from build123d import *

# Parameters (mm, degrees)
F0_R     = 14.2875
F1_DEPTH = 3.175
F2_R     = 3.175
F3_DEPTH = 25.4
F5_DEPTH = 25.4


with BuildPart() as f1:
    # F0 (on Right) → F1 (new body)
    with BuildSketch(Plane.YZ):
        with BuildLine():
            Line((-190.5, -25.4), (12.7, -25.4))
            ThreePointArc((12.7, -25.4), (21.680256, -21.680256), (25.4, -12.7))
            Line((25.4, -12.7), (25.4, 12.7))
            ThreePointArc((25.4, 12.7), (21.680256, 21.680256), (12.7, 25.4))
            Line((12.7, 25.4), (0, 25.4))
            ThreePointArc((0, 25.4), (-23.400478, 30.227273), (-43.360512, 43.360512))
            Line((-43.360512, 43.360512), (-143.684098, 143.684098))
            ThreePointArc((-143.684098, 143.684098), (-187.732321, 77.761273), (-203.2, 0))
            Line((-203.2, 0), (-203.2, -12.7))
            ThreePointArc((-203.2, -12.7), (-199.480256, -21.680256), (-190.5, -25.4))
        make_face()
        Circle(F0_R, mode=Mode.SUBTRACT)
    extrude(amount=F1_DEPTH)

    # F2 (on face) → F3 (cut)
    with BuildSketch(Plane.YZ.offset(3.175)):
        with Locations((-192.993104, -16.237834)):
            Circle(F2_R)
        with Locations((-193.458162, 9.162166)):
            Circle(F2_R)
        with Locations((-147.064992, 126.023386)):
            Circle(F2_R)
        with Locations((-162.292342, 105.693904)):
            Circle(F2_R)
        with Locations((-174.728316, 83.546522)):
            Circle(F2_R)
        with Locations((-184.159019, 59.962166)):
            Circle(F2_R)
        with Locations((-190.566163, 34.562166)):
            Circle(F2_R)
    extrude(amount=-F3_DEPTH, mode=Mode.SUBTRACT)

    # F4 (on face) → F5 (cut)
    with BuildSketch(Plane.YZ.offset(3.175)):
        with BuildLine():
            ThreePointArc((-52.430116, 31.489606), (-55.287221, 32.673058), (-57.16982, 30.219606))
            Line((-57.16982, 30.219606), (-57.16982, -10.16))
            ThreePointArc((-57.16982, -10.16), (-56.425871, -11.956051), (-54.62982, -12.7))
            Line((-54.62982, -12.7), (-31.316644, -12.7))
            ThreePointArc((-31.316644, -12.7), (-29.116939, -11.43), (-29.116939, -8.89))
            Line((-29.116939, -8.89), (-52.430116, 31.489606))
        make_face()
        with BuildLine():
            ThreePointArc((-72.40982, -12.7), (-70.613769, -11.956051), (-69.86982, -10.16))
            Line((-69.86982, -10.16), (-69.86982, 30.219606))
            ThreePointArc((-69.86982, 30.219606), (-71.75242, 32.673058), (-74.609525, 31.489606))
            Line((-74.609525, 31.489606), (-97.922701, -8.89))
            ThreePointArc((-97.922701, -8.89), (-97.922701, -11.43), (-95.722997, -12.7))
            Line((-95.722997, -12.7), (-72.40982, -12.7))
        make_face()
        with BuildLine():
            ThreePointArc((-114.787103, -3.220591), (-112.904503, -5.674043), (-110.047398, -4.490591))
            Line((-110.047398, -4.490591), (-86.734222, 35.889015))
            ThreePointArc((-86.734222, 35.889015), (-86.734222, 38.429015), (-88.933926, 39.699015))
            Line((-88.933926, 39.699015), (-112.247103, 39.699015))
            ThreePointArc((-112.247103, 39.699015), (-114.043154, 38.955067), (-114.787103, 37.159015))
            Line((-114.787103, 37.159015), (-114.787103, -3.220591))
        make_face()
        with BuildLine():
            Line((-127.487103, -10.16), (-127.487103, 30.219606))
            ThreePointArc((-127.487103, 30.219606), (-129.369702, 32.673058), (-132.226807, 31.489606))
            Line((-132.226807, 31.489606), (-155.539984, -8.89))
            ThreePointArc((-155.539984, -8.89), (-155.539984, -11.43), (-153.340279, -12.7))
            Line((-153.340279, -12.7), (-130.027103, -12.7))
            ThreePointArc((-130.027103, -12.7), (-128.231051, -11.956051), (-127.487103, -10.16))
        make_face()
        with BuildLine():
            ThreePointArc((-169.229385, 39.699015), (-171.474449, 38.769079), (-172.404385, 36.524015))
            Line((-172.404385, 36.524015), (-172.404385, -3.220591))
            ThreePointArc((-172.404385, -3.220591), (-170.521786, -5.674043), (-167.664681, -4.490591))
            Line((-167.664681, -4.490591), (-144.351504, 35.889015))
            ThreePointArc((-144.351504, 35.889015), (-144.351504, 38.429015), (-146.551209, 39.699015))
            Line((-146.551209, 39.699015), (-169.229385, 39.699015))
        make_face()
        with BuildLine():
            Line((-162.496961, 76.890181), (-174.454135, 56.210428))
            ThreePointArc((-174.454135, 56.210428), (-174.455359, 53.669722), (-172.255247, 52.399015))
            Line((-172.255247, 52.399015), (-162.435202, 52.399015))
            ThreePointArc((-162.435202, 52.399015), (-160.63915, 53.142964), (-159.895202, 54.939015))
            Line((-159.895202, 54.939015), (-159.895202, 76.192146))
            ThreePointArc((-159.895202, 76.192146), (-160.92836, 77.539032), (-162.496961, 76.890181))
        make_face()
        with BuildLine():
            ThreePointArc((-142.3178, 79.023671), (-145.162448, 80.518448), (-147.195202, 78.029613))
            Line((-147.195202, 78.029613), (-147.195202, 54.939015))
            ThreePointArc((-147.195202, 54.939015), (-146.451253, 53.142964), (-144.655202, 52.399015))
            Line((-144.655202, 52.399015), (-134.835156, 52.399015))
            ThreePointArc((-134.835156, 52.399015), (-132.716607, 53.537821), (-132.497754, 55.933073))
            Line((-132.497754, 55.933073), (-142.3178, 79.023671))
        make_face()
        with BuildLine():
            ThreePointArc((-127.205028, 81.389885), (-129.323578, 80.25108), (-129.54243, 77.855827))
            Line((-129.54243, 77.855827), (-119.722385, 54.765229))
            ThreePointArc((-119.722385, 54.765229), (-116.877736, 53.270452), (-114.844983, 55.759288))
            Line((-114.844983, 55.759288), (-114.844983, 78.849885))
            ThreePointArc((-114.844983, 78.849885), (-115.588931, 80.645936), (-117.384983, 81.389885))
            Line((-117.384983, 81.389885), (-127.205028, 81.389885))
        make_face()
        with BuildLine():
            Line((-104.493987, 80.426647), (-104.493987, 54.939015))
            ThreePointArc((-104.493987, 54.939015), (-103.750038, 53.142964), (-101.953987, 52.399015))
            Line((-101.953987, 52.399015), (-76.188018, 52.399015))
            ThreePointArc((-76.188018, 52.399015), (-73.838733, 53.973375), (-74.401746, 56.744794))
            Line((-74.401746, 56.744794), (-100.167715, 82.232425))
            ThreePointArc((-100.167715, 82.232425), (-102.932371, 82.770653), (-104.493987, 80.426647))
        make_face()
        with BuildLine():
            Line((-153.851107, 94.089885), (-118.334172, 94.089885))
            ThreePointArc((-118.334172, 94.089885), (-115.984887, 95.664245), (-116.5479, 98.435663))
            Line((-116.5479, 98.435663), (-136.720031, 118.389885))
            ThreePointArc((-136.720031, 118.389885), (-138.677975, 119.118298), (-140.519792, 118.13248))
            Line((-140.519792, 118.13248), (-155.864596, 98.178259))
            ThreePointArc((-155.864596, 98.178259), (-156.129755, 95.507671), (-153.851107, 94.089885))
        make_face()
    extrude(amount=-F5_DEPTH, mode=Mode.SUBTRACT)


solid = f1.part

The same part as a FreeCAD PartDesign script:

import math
import FreeCAD as App
import Part
import Sketcher

V = App.Vector
Q = App.Units.Quantity

doc = App.newDocument("Part")
body = doc.addObject("PartDesign::Body", "Body")

sketch1 = doc.addObject("Sketcher::SketchObject", "Sketch")
body.addObject(sketch1)
sketch1.AttachmentSupport = (doc.YZ_Plane, [""])
sketch1.MapMode = "FlatFace"
sketch1.addGeometry([
    Part.LineSegment(V(-190, -25, 0), V(13, -25, 0)),
    Part.ArcOfCircle(Part.Circle(V(13, -13, 0), V(0, 0, 1), 13), math.radians(-90), math.radians(0)),
    Part.LineSegment(V(25, -13, 0), V(25, 13, 0)),
    Part.ArcOfCircle(Part.Circle(V(13, 13, 0), V(0, 0, 1), 13), math.radians(0), math.radians(90)),
    Part.LineSegment(V(13, 25, 0), V(0, 25, 0)),
    Part.ArcOfCircle(Part.Circle(V(1, 89, 0), V(0, 0, 1), 64), math.radians(-134), math.radians(-91)),
    Part.LineSegment(V(-43, 43, 0), V(-144, 144, 0)),
    Part.ArcOfCircle(Part.Circle(V(0, 0, 0), V(0, 0, 1), 203), math.radians(135), math.radians(180)),
    Part.LineSegment(V(-203, 0, 0), V(-203, -13, 0)),
    Part.ArcOfCircle(Part.Circle(V(-190, -13, 0), V(0, 0, 1), 13), math.radians(-180), math.radians(-90)),
    Part.Circle(V(0, 0, 0), V(0, 0, 1), 14),
], False)
sketch1.addConstraint([
    Sketcher.Constraint("Tangent", 0, 2, 1, 1),
    Sketcher.Constraint("Tangent", 1, 2, 2, 1),
    Sketcher.Constraint("Tangent", 2, 2, 3, 1),
    Sketcher.Constraint("Tangent", 3, 2, 4, 1),
    Sketcher.Constraint("Coincident", 4, 2, 5, 2),
    Sketcher.Constraint("Coincident", 5, 1, 6, 1),
    Sketcher.Constraint("Coincident", 6, 2, 7, 1),
    Sketcher.Constraint("Tangent", 7, 2, 8, 1),
    Sketcher.Constraint("Tangent", 8, 2, 9, 1),
    Sketcher.Constraint("Tangent", 9, 2, 0, 1),
    Sketcher.Constraint("Horizontal", 0),
    Sketcher.Constraint("Vertical", 2),
    Sketcher.Constraint("Horizontal", 4),
    Sketcher.Constraint("Vertical", 8),
    Sketcher.Constraint("Coincident", 7, 3, -1, 1),
    Sketcher.Constraint("Coincident", 10, 3, -1, 1),
    Sketcher.Constraint("Equal", 1, 3),
    Sketcher.Constraint("Equal", 3, 9),
    Sketcher.Constraint("PointOnObject", 4, 2, -2),
    Sketcher.Constraint("Equal", 4, 8),
    Sketcher.Constraint("Radius", 7, Q("8.0000001 in")),
    Sketcher.Constraint("Radius", 1, Q("0.5 in")),
    Sketcher.Constraint("DistanceX", 0, 1, 0, 2, Q("8 in")),
    Sketcher.Constraint("DistanceY", 2, 1, 2, 2, Q("1 in")),
    Sketcher.Constraint("Diameter", 10, Q("1.125 in")),
    Sketcher.Constraint("Angle", 6, Q("135 deg")),
    Sketcher.Constraint("Radius", 5, 63.500007),
    Sketcher.Constraint("DistanceX", 6, 2, -1, 1, 143.684098),
    Sketcher.Constraint("DistanceY", -1, 1, 5, 1, 43.360512),
])
pad1 = doc.addObject("PartDesign::Pad", "Pad")
body.addObject(pad1)
pad1.Profile = sketch1
pad1.Length = Q("0.125 in")

sketch2 = doc.addObject("Sketcher::SketchObject", "Sketch001")
body.addObject(sketch2)
sketch2.AttachmentSupport = (doc.YZ_Plane, [""])
sketch2.MapMode = "FlatFace"
sketch2.AttachmentOffset = App.Placement(V(0, 0, 0.125 * 25.4), App.Rotation())
sketch2.addGeometry([
    Part.Circle(V(-193, -16.2, 0), V(0, 0, 1), 3.2),
    Part.Circle(V(-193.5, 9.2, 0), V(0, 0, 1), 3.2),
    Part.Circle(V(-147.1, 126, 0), V(0, 0, 1), 3.2),
    Part.Circle(V(-162.3, 105.7, 0), V(0, 0, 1), 3.2),
    Part.Circle(V(-174.7, 83.5, 0), V(0, 0, 1), 3.2),
    Part.Circle(V(-184.2, 60, 0), V(0, 0, 1), 3.2),
    Part.Circle(V(-190.6, 34.6, 0), V(0, 0, 1), 3.2),
], False)
sketch2.addConstraint([
    Sketcher.Constraint("Equal", 0, 1),
    Sketcher.Constraint("Equal", 1, 2),
    Sketcher.Constraint("Equal", 2, 3),
    Sketcher.Constraint("Equal", 3, 4),
    Sketcher.Constraint("Equal", 4, 5),
    Sketcher.Constraint("Equal", 5, 6),
    Sketcher.Constraint("Diameter", 0, Q("0.25 in")),
    Sketcher.Constraint("DistanceY", 0, 3, 1, 3, Q("1 in")),
    Sketcher.Constraint("DistanceY", 1, 3, 5, 3, Q("2 in")),
    Sketcher.Constraint("DistanceY", 1, 3, 6, 3, Q("1 in")),
    Sketcher.Constraint("DistanceX", 1, 3, 6, 3, 2.891999),
    Sketcher.Constraint("DistanceX", 1, 3, -1, 1, 193.458162),
    Sketcher.Constraint("DistanceX", 2, 3, -1, 1, 147.064992),
    Sketcher.Constraint("DistanceX", 3, 3, -1, 1, 162.292342),
    Sketcher.Constraint("DistanceY", -1, 1, 4, 3, 83.546522),
    Sketcher.Constraint("DistanceX", 5, 3, -1, 1, 184.159019),
    Sketcher.Constraint("DistanceY", 1, 3, 2, 3, 116.86122),
    Sketcher.Constraint("DistanceY", 3, 3, 2, 3, 20.329482),
    Sketcher.Constraint("DistanceX", 0, 3, 3, 3, 30.700762),
    Sketcher.Constraint("DistanceY", 0, 3, -1, 1, 16.237834),
    Sketcher.Constraint("DistanceX", 4, 3, -1, 1, 174.728316),
])
pocket1 = doc.addObject("PartDesign::Pocket", "Pocket")
body.addObject(pocket1)
pocket1.Profile = sketch2
pocket1.Length = Q("1 in")

sketch3 = doc.addObject("Sketcher::SketchObject", "Sketch002")
body.addObject(sketch3)
sketch3.AttachmentSupport = (doc.YZ_Plane, [""])
sketch3.MapMode = "FlatFace"
sketch3.AttachmentOffset = App.Placement(V(0, 0, 0.125 * 25.4), App.Rotation())
sketch3.addGeometry([
    Part.ArcOfCircle(Part.Circle(V(-54.6, 30.2, 0), V(0, 0, 1), 2.5), math.radians(30), math.radians(180)),
    Part.LineSegment(V(-57.2, 30.2, 0), V(-57.2, -10.2, 0)),
    Part.ArcOfCircle(Part.Circle(V(-54.6, -10.2, 0), V(0, 0, 1), 2.5), math.radians(-180), math.radians(-90)),
    Part.LineSegment(V(-54.6, -12.7, 0), V(-31.3, -12.7, 0)),
    Part.ArcOfCircle(Part.Circle(V(-31.3, -10.2, 0), V(0, 0, 1), 2.5), math.radians(-90), math.radians(30)),
    Part.LineSegment(V(-29.1, -8.9, 0), V(-52.4, 31.5, 0)),
    Part.ArcOfCircle(Part.Circle(V(-72.4, -10.2, 0), V(0, 0, 1), 2.5), math.radians(-90), math.radians(0)),
    Part.LineSegment(V(-69.9, -10.2, 0), V(-69.9, 30.2, 0)),
    Part.ArcOfCircle(Part.Circle(V(-72.4, 30.2, 0), V(0, 0, 1), 2.5), math.radians(0), math.radians(150)),
    Part.LineSegment(V(-74.6, 31.5, 0), V(-97.9, -8.9, 0)),
    Part.ArcOfCircle(Part.Circle(V(-95.7, -10.2, 0), V(0, 0, 1), 2.5), math.radians(150), math.radians(270)),
    Part.LineSegment(V(-95.7, -12.7, 0), V(-72.4, -12.7, 0)),
    Part.ArcOfCircle(Part.Circle(V(-112.2, -3.2, 0), V(0, 0, 1), 2.5), math.radians(180), math.radians(330)),
    Part.LineSegment(V(-110, -4.5, 0), V(-86.7, 35.9, 0)),
    Part.ArcOfCircle(Part.Circle(V(-88.9, 37.2, 0), V(0, 0, 1), 2.5), math.radians(-30), math.radians(90)),
    Part.LineSegment(V(-88.9, 39.7, 0), V(-112.2, 39.7, 0)),
    Part.ArcOfCircle(Part.Circle(V(-112.2, 37.2, 0), V(0, 0, 1), 2.5), math.radians(90), math.radians(180)),
    Part.LineSegment(V(-114.8, 37.2, 0), V(-114.8, -3.2, 0)),
    Part.LineSegment(V(-127.5, -10.2, 0), V(-127.5, 30.2, 0)),
    Part.ArcOfCircle(Part.Circle(V(-130, 30.2, 0), V(0, 0, 1), 2.5), math.radians(0), math.radians(150)),
    Part.LineSegment(V(-132.2, 31.5, 0), V(-155.5, -8.9, 0)),
    Part.ArcOfCircle(Part.Circle(V(-153.3, -10.2, 0), V(0, 0, 1), 2.5), math.radians(150), math.radians(270)),
    Part.LineSegment(V(-153.3, -12.7, 0), V(-130, -12.7, 0)),
    Part.ArcOfCircle(Part.Circle(V(-130, -10.2, 0), V(0, 0, 1), 2.5), math.radians(-90), math.radians(0)),
    Part.ArcOfCircle(Part.Circle(V(-169.2, 36.5, 0), V(0, 0, 1), 3.2), math.radians(90), math.radians(180)),
    Part.LineSegment(V(-172.4, 36.5, 0), V(-172.4, -3.2, 0)),
    Part.ArcOfCircle(Part.Circle(V(-169.9, -3.2, 0), V(0, 0, 1), 2.5), math.radians(180), math.radians(330)),
    Part.LineSegment(V(-167.7, -4.5, 0), V(-144.4, 35.9, 0)),
    Part.ArcOfCircle(Part.Circle(V(-146.6, 37.2, 0), V(0, 0, 1), 2.5), math.radians(-30), math.radians(90)),
    Part.LineSegment(V(-146.6, 39.7, 0), V(-169.2, 39.7, 0)),
    Part.LineSegment(V(-162.5, 76.9, 0), V(-174.5, 56.2, 0)),
    Part.ArcOfCircle(Part.Circle(V(-172.3, 54.9, 0), V(0, 0, 1), 2.5), math.radians(150), math.radians(270)),
    Part.LineSegment(V(-172.3, 52.4, 0), V(-162.4, 52.4, 0)),
    Part.ArcOfCircle(Part.Circle(V(-162.4, 54.9, 0), V(0, 0, 1), 2.5), math.radians(-90), math.radians(0)),
    Part.LineSegment(V(-159.9, 54.9, 0), V(-159.9, 76.2, 0)),
    Part.ArcOfCircle(Part.Circle(V(-161.3, 76.2, 0), V(0, 0, 1), 1.4), math.radians(0), math.radians(150)),
    Part.ArcOfCircle(Part.Circle(V(-144.7, 78, 0), V(0, 0, 1), 2.5), math.radians(23), math.radians(180)),
    Part.LineSegment(V(-147.2, 78, 0), V(-147.2, 54.9, 0)),
    Part.ArcOfCircle(Part.Circle(V(-144.7, 54.9, 0), V(0, 0, 1), 2.5), math.radians(-180), math.radians(-90)),
    Part.LineSegment(V(-144.7, 52.4, 0), V(-134.8, 52.4, 0)),
    Part.ArcOfCircle(Part.Circle(V(-134.8, 54.9, 0), V(0, 0, 1), 2.5), math.radians(-90), math.radians(23)),
    Part.LineSegment(V(-132.5, 55.9, 0), V(-142.3, 79, 0)),
    Part.ArcOfCircle(Part.Circle(V(-127.2, 78.8, 0), V(0, 0, 1), 2.5), math.radians(90), math.radians(203)),
    Part.LineSegment(V(-129.5, 77.9, 0), V(-119.7, 54.8, 0)),
    Part.ArcOfCircle(Part.Circle(V(-117.4, 55.8, 0), V(0, 0, 1), 2.5), math.radians(-157), math.radians(0)),
    Part.LineSegment(V(-114.8, 55.8, 0), V(-114.8, 78.8, 0)),
    Part.ArcOfCircle(Part.Circle(V(-117.4, 78.8, 0), V(0, 0, 1), 2.5), math.radians(0), math.radians(90)),
    Part.LineSegment(V(-117.4, 81.4, 0), V(-127.2, 81.4, 0)),
    Part.LineSegment(V(-104.5, 80.4, 0), V(-104.5, 54.9, 0)),
    Part.ArcOfCircle(Part.Circle(V(-102, 54.9, 0), V(0, 0, 1), 2.5), math.radians(-180), math.radians(-90)),
    Part.LineSegment(V(-102, 52.4, 0), V(-76.2, 52.4, 0)),
    Part.ArcOfCircle(Part.Circle(V(-76.2, 54.9, 0), V(0, 0, 1), 2.5), math.radians(-90), math.radians(45)),
    Part.LineSegment(V(-74.4, 56.7, 0), V(-100.2, 82.2, 0)),
    Part.ArcOfCircle(Part.Circle(V(-102, 80.4, 0), V(0, 0, 1), 2.5), math.radians(45), math.radians(180)),
    Part.LineSegment(V(-153.9, 94.1, 0), V(-118.3, 94.1, 0)),
    Part.ArcOfCircle(Part.Circle(V(-118.3, 96.6, 0), V(0, 0, 1), 2.5), math.radians(-90), math.radians(45)),
    Part.LineSegment(V(-116.5, 98.4, 0), V(-136.7, 118.4, 0)),
    Part.ArcOfCircle(Part.Circle(V(-138.5, 116.6, 0), V(0, 0, 1), 2.5), math.radians(45), math.radians(142)),
    Part.LineSegment(V(-140.5, 118.1, 0), V(-155.9, 98.2, 0)),
    Part.ArcOfCircle(Part.Circle(V(-153.9, 96.6, 0), V(0, 0, 1), 2.5), math.radians(142), math.radians(270)),
], False)
sketch3.addConstraint([
    Sketcher.Constraint("Tangent", 0, 2, 1, 1),
    Sketcher.Constraint("Tangent", 1, 2, 2, 1),
    Sketcher.Constraint("Tangent", 2, 2, 3, 1),
    Sketcher.Constraint("Tangent", 3, 2, 4, 1),
    Sketcher.Constraint("Tangent", 4, 2, 5, 1),
    Sketcher.Constraint("Tangent", 5, 2, 0, 1),
    Sketcher.Constraint("Tangent", 6, 2, 7, 1),
    Sketcher.Constraint("Tangent", 7, 2, 8, 1),
    Sketcher.Constraint("Tangent", 8, 2, 9, 1),
    Sketcher.Constraint("Tangent", 9, 2, 10, 1),
    Sketcher.Constraint("Tangent", 10, 2, 11, 1),
    Sketcher.Constraint("Tangent", 11, 2, 6, 1),
    Sketcher.Constraint("Tangent", 12, 2, 13, 1),
    Sketcher.Constraint("Tangent", 13, 2, 14, 1),
    Sketcher.Constraint("Tangent", 14, 2, 15, 1),
    Sketcher.Constraint("Tangent", 15, 2, 16, 1),
    Sketcher.Constraint("Tangent", 16, 2, 17, 1),
    Sketcher.Constraint("Tangent", 17, 2, 12, 1),
    Sketcher.Constraint("Tangent", 18, 2, 19, 1),
    Sketcher.Constraint("Tangent", 19, 2, 20, 1),
    Sketcher.Constraint("Tangent", 20, 2, 21, 1),
    Sketcher.Constraint("Tangent", 21, 2, 22, 1),
    Sketcher.Constraint("Tangent", 22, 2, 23, 1),
    Sketcher.Constraint("Tangent", 23, 2, 18, 1),
    Sketcher.Constraint("Tangent", 24, 2, 25, 1),
    Sketcher.Constraint("Tangent", 25, 2, 26, 1),
    Sketcher.Constraint("Tangent", 26, 2, 27, 1),
    Sketcher.Constraint("Tangent", 27, 2, 28, 1),
    Sketcher.Constraint("Tangent", 28, 2, 29, 1),
    Sketcher.Constraint("Tangent", 29, 2, 24, 1),
    Sketcher.Constraint("Tangent", 30, 2, 31, 1),
    Sketcher.Constraint("Tangent", 31, 2, 32, 1),
    Sketcher.Constraint("Tangent", 32, 2, 33, 1),
    Sketcher.Constraint("Tangent", 33, 2, 34, 1),
    Sketcher.Constraint("Tangent", 34, 2, 35, 1),
    Sketcher.Constraint("Tangent", 35, 2, 30, 1),
    Sketcher.Constraint("Tangent", 36, 2, 37, 1),
    Sketcher.Constraint("Tangent", 37, 2, 38, 1),
    Sketcher.Constraint("Tangent", 38, 2, 39, 1),
    Sketcher.Constraint("Tangent", 39, 2, 40, 1),
    Sketcher.Constraint("Tangent", 40, 2, 41, 1),
    Sketcher.Constraint("Tangent", 41, 2, 36, 1),
    Sketcher.Constraint("Tangent", 42, 2, 43, 1),
    Sketcher.Constraint("Tangent", 43, 2, 44, 1),
    Sketcher.Constraint("Tangent", 44, 2, 45, 1),
    Sketcher.Constraint("Tangent", 45, 2, 46, 1),
    Sketcher.Constraint("Tangent", 46, 2, 47, 1),
    Sketcher.Constraint("Tangent", 47, 2, 42, 1),
    Sketcher.Constraint("Tangent", 48, 2, 49, 1),
    Sketcher.Constraint("Tangent", 49, 2, 50, 1),
    Sketcher.Constraint("Tangent", 50, 2, 51, 1),
    Sketcher.Constraint("Tangent", 51, 2, 52, 1),
    Sketcher.Constraint("Tangent", 52, 2, 53, 1),
    Sketcher.Constraint("Tangent", 53, 2, 48, 1),
    Sketcher.Constraint("Tangent", 54, 2, 55, 1),
    Sketcher.Constraint("Tangent", 55, 2, 56, 1),
    Sketcher.Constraint("Tangent", 56, 2, 57, 1),
    Sketcher.Constraint("Tangent", 57, 2, 58, 1),
    Sketcher.Constraint("Tangent", 58, 2, 59, 1),
    Sketcher.Constraint("Tangent", 59, 2, 54, 1),
    Sketcher.Constraint("Vertical", 1),
    Sketcher.Constraint("Horizontal", 3),
    Sketcher.Constraint("Vertical", 7),
    Sketcher.Constraint("Horizontal", 11),
    Sketcher.Constraint("Horizontal", 15),
    Sketcher.Constraint("Vertical", 17),
    Sketcher.Constraint("Vertical", 18),
    Sketcher.Constraint("Horizontal", 22),
    Sketcher.Constraint("Vertical", 25),
    Sketcher.Constraint("Horizontal", 29),
    Sketcher.Constraint("Horizontal", 32),
    Sketcher.Constraint("Vertical", 34),
    Sketcher.Constraint("Vertical", 37),
    Sketcher.Constraint("Horizontal", 39),
    Sketcher.Constraint("Vertical", 45),
    Sketcher.Constraint("Horizontal", 47),
    Sketcher.Constraint("Vertical", 48),
    Sketcher.Constraint("Horizontal", 50),
    Sketcher.Constraint("Horizontal", 54),
    Sketcher.Constraint("Equal", 0, 2),
    Sketcher.Constraint("Equal", 2, 4),
    Sketcher.Constraint("Equal", 4, 6),
    Sketcher.Constraint("Equal", 6, 8),
    Sketcher.Constraint("Equal", 8, 10),
    Sketcher.Constraint("Equal", 10, 12),
    Sketcher.Constraint("Equal", 12, 14),
    Sketcher.Constraint("Equal", 14, 16),
    Sketcher.Constraint("Equal", 16, 19),
    Sketcher.Constraint("Equal", 19, 21),
    Sketcher.Constraint("Equal", 21, 23),
    Sketcher.Constraint("Equal", 23, 26),
    Sketcher.Constraint("Equal", 26, 28),
    Sketcher.Constraint("Equal", 28, 31),
    Sketcher.Constraint("Equal", 31, 33),
    Sketcher.Constraint("Equal", 33, 36),
    Sketcher.Constraint("Equal", 36, 38),
    Sketcher.Constraint("Equal", 38, 40),
    Sketcher.Constraint("Equal", 40, 42),
    Sketcher.Constraint("Equal", 42, 44),
    Sketcher.Constraint("Equal", 44, 46),
    Sketcher.Constraint("Equal", 46, 49),
    Sketcher.Constraint("Equal", 49, 51),
    Sketcher.Constraint("Equal", 51, 53),
    Sketcher.Constraint("Equal", 53, 55),
    Sketcher.Constraint("Equal", 55, 57),
    Sketcher.Constraint("Equal", 57, 59),
    Sketcher.Constraint("Parallel", 9, 13),
    Sketcher.Constraint("Parallel", 13, 20),
    Sketcher.Constraint("Parallel", 20, 27),
    Sketcher.Constraint("Parallel", 41, 43),
    Sketcher.Constraint("Parallel", 52, 56),
    Sketcher.Constraint("Horizontal", 4, 3, 6, 3),
    Sketcher.Constraint("Horizontal", 0, 3, 8, 3),
    Sketcher.Constraint("Horizontal", 8, 3, 19, 3),
    Sketcher.Constraint("Horizontal", 10, 3, 21, 3),
    Sketcher.Constraint("Horizontal", 12, 3, 26, 3),
    Sketcher.Constraint("Horizontal", 16, 3, 28, 3),
    Sketcher.Constraint("Horizontal", 33, 3, 38, 3),
    Sketcher.Constraint("Horizontal", 40, 3, 49, 3),
    Sketcher.Constraint("Horizontal", 5, 2, 8, 2),
    Sketcher.Constraint("Equal", 11, 15),
    Sketcher.Constraint("Equal", 32, 39),
    Sketcher.Constraint("Equal", 39, 47),
    Sketcher.Constraint("Radius", 0, Q("0.1 in")),
    Sketcher.Constraint("Angle", 5, Q("120.000001 deg")),
    Sketcher.Constraint("Radius", 24, Q("0.125 in")),
    Sketcher.Constraint("DistanceY", 2, 3, -1, 1, Q("0.4 in")),
    Sketcher.Constraint("Radius", 35, 1.394518),
    Sketcher.Constraint("DistanceY", 37, 2, 37, 1, 23.090598),
    Sketcher.Constraint("DistanceX", 55, 2, -1, 1, Q("4.5885 in")),
    Sketcher.Constraint("DistanceX", 50, 1, 50, 2, 25.765969),
    Sketcher.Constraint("DistanceY", 34, 1, 34, 2, 21.253131),
    Sketcher.Constraint("DistanceX", 33, 3, -1, 1, 162.435201),
    Sketcher.Constraint("DistanceX", 36, 3, -1, 1, 144.655202),
    Sketcher.Constraint("DistanceX", 9, 2, -1, 1, 97.922701),
    Sketcher.Constraint("DistanceX", 41, 2, -1, 1, 142.3178),
    Sketcher.Constraint("DistanceX", 3, 1, 3, 2, 23.313176),
    Sketcher.Constraint("DistanceX", 54, 1, 54, 2, 35.516935),
    Sketcher.Constraint("DistanceY", 48, 2, 48, 1, 25.487632),
    Sketcher.Constraint("DistanceX", 0, 3, -1, 1, 54.62982),
    Sketcher.Constraint("DistanceY", 12, 3, -1, 1, 3.220591),
    Sketcher.Constraint("DistanceX", 21, 3, -1, 1, 153.340279),
    Sketcher.Constraint("DistanceX", 28, 3, -1, 1, 146.551209),
    Sketcher.Constraint("DistanceX", 42, 3, -1, 1, 127.205029),
    Sketcher.Constraint("DistanceX", 51, 3, -1, 1, 76.188018),
    Sketcher.Constraint("DistanceY", -1, 1, 35, 2, 76.890181),
    Sketcher.Constraint("DistanceY", -1, 1, 43, 2, 54.765229),
    Sketcher.Constraint("DistanceX", 56, 2, -1, 1, 136.720031),
    Sketcher.Constraint("DistanceY", -1, 1, 57, 2, 118.13248),
    Sketcher.Constraint("DistanceX", 12, 3, -1, 1, 112.247103),
])
pocket2 = doc.addObject("PartDesign::Pocket", "Pocket001")
body.addObject(pocket2)
pocket2.Profile = sketch3
pocket2.Length = Q("1 in")

doc.recompute()
